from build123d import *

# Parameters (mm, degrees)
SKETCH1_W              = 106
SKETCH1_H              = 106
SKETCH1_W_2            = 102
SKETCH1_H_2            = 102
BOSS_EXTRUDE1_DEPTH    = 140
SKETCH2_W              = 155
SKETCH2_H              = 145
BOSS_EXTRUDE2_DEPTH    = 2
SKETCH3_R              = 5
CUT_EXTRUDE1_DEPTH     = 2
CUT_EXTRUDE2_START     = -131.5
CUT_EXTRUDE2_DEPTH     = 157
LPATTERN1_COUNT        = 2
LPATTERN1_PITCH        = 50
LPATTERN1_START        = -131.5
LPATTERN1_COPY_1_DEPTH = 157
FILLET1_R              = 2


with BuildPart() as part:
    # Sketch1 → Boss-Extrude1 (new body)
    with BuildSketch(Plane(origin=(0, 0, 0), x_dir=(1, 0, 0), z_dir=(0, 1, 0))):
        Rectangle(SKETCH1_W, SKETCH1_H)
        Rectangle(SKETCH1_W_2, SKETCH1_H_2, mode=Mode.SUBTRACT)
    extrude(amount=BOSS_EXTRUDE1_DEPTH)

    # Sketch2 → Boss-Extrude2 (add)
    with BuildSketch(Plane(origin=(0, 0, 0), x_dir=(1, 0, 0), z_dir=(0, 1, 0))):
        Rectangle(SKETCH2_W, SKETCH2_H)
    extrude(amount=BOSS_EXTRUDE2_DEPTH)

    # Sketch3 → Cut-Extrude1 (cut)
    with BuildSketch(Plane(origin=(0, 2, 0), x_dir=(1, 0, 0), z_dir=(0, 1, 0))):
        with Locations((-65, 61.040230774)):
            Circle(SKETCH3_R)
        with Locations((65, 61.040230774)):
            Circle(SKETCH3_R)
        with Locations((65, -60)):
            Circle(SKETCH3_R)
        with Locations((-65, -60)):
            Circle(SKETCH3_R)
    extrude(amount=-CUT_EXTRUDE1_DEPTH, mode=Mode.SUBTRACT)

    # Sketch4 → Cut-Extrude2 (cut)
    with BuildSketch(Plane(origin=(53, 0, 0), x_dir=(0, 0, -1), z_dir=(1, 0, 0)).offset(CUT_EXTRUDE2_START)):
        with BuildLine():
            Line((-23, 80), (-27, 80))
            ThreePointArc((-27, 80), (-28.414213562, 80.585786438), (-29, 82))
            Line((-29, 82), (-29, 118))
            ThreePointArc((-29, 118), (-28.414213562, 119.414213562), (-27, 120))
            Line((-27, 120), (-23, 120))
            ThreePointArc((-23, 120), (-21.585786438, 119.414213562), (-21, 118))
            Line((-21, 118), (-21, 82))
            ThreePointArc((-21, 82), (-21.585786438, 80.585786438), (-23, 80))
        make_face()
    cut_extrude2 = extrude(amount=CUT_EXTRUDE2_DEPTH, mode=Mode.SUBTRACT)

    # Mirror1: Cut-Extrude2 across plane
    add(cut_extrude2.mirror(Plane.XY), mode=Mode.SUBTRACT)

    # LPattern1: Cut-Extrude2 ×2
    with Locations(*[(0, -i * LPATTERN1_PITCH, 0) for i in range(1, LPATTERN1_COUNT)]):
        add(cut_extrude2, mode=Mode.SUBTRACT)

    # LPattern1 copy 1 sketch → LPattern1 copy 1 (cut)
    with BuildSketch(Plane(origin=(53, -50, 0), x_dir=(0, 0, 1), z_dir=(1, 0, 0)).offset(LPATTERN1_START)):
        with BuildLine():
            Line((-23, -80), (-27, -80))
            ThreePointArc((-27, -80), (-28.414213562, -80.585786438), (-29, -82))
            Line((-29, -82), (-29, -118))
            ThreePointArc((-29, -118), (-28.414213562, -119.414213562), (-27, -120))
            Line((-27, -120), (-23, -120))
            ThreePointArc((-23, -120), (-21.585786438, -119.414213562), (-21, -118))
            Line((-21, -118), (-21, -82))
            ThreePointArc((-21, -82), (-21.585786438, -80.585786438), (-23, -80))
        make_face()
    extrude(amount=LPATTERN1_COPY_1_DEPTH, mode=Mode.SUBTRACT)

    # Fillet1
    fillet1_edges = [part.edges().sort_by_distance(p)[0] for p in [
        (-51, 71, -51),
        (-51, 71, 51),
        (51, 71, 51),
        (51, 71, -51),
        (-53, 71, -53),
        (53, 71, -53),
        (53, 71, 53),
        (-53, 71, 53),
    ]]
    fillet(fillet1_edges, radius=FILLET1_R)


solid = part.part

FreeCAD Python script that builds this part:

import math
import FreeCAD as App
import Part
import Sketcher


def edges_at(feature, points):
    """Names of the edges that pass closest to the given points."""
    edges = feature.Shape.Edges
    near = lambda p: min(range(len(edges)), key=lambda i: edges[i].distToShape(Part.Vertex(*p))[0])
    return sorted({f"Edge{near(p) + 1}" for p in points})


def add_polygon(sketch, points):
    """Adds a closed chain of lines whose ends are joined by coincident constraints."""
    first, n = sketch.GeometryCount, len(points)
    for a, b in zip(points, points[1:] + points[:1]):
        sketch.addGeometry(Part.LineSegment(App.Vector(*a, 0), App.Vector(*b, 0)), False)
    for i in range(n):
        sketch.addConstraint(Sketcher.Constraint("Coincident", first + i, 2, first + (i + 1) % n, 1))

doc = App.newDocument("Part")
params = doc.addObject("Spreadsheet::Sheet", "Params")
for row, (alias, value) in enumerate([
    ("sketch1_width", "106 mm"),
    ("sketch1_width2", "102 mm"),
    ("pad1_length", "140 mm"),
    ("sketch2_width", "155 mm"),
    ("sketch2_height", "145 mm"),
    ("pad2_length", "2 mm"),
    ("sketch3_diameter", "10 mm"),
    ("pocket1_length", "2 mm"),
    ("sketch4_radius", "2 mm"),
    ("sketch4_width", "36 mm"),
    ("sketch4_height", "4 mm"),
    ("pocket2_length", "157 mm"),
    ("linearpattern_pitch", "50 mm"),
    ("sketch5_radius", "2 mm"),
    ("sketch5_width", "36 mm"),
    ("sketch5_height", "4 mm"),
    ("pocket3_length", "157 mm"),
    ("fillet_radius", "2 mm"),
], start=1):
    params.set(f"A{row}", alias)
    params.set(f"B{row}", "=" + value)
    params.setAlias(f"B{row}", alias)

body = doc.addObject("PartDesign::Body", "Body")

sketch1 = doc.addObject("Sketcher::SketchObject", "Sketch")
body.addObject(sketch1)
sketch1.AttachmentSupport = (doc.XZ_Plane, [""])
sketch1.MapMode = "FlatFace"
add_polygon(sketch1, [(-53, -53), (-53, 53), (53, 53), (53, -53)])
add_polygon(sketch1, [(51, 51), (-51, 51), (-51, -51), (51, -51)])
sketch1.addConstraint(Sketcher.Constraint("Vertical", 0))
sketch1.addConstraint(Sketcher.Constraint("Horizontal", 1))
sketch1.addConstraint(Sketcher.Constraint("Vertical", 2))
sketch1.addConstraint(Sketcher.Constraint("Horizontal", 3))
sketch1.addConstraint(Sketcher.Constraint("Horizontal", 4))
sketch1.addConstraint(Sketcher.Constraint("Vertical", 5))
sketch1.addConstraint(Sketcher.Constraint("Horizontal", 6))
sketch1.addConstraint(Sketcher.Constraint("Vertical", 7))
sketch1.addConstraint(Sketcher.Constraint("Symmetric", 0, 2, 2, 2, -1, 1))
sketch1.addConstraint(Sketcher.Constraint("Symmetric", 4, 2, 6, 2, -1, 1))
sketch1.addConstraint(Sketcher.Constraint("Equal", 3, 0))
sketch1.addConstraint(Sketcher.Constraint("Equal", 6, 5))
sketch1.addConstraint(Sketcher.Constraint("DistanceX", 1, 1, 1, 2, 106.0))
sketch1.addConstraint(Sketcher.Constraint("DistanceX", 4, 2, 4, 1, 102.0))
sketch1.setExpression("Constraints[20]", "Params.sketch1_width")
sketch1.setExpression("Constraints[21]", "Params.sketch1_width2")
pad1 = doc.addObject("PartDesign::Pad", "Pad")
body.addObject(pad1)
pad1.Profile = sketch1
pad1.setExpression("Length", "Params.pad1_length")
pad1.Reversed = True

sketch2 = doc.addObject("Sketcher::SketchObject", "Sketch001")
body.addObject(sketch2)
sketch2.AttachmentSupport = (doc.XZ_Plane, [""])
sketch2.MapMode = "FlatFace"
add_polygon(sketch2, [(-78, -72), (-78, 72), (78, 72), (78, -72)])
sketch2.addConstraint(Sketcher.Constraint("Vertical", 0))
sketch2.addConstraint(Sketcher.Constraint("Horizontal", 1))
sketch2.addConstraint(Sketcher.Constraint("Vertical", 2))
sketch2.addConstraint(Sketcher.Constraint("Horizontal", 3))
sketch2.addConstraint(Sketcher.Constraint("Symmetric", 0, 2, 2, 2, -1, 1))
sketch2.addConstraint(Sketcher.Constraint("DistanceX", 1, 1, 1, 2, 155.0))
sketch2.addConstraint(Sketcher.Constraint("DistanceY", 0, 1, 0, 2, 145.0))
sketch2.setExpression("Constraints[9]", "Params.sketch2_width")
sketch2.setExpression("Constraints[10]", "Params.sketch2_height")
pad2 = doc.addObject("PartDesign::Pad", "Pad001")
body.addObject(pad2)
pad2.Profile = sketch2
pad2.setExpression("Length", "Params.pad2_length")
pad2.Reversed = True

sketch3 = doc.addObject("Sketcher::SketchObject", "Sketch002")
body.addObject(sketch3)
sketch3.AttachmentSupport = (doc.XZ_Plane, [""])
sketch3.MapMode = "FlatFace"
sketch3.AttachmentOffset = App.Placement(App.Vector(0, 0, -2), App.Rotation())
sketch3.addGeometry(Part.Circle(App.Vector(-65, -61, 0), App.Vector(0, 0, 1), 5), False)
sketch3.addGeometry(Part.Circle(App.Vector(65, -61, 0), App.Vector(0, 0, 1), 5), False)
sketch3.addGeometry(Part.Circle(App.Vector(65, 60, 0), App.Vector(0, 0, 1), 5), False)
sketch3.addGeometry(Part.Circle(App.Vector(-65, 60, 0), App.Vector(0, 0, 1), 5), False)
sketch3.addConstraint(Sketcher.Constraint("Equal", 0, 1))
sketch3.addConstraint(Sketcher.Constraint("Equal", 1, 2))
sketch3.addConstraint(Sketcher.Constraint("Equal", 2, 3))
sketch3.addConstraint(Sketcher.Constraint("Symmetric", 0, 3, 1, 3, -2))
sketch3.addConstraint(Sketcher.Constraint("Symmetric", 2, 3, 3, 3, -2))
sketch3.addConstraint(Sketcher.Constraint("Vertical", 1, 3, 2, 3))
sketch3.addConstraint(Sketcher.Constraint("Diameter", 0, 10.0))
sketch3.addConstraint(Sketcher.Constraint("DistanceX", 0, 3, -1, 1, 65.0))
sketch3.addConstraint(Sketcher.Constraint("DistanceY", -1, 1, 2, 3, 60.0))
sketch3.addConstraint(Sketcher.Constraint("DistanceY", 0, 3, -1, 1, 61.040231))
sketch3.setExpression("Constraints[6]", "Params.sketch3_diameter")
pocket1 = doc.addObject("PartDesign::Pocket", "Pocket")
body.addObject(pocket1)
pocket1.Profile = sketch3
pocket1.setExpression("Length", "Params.pocket1_length")
pocket1.Reversed = True

sketch4 = doc.addObject("Sketcher::SketchObject", "Sketch003")
body.addObject(sketch4)
sketch4.AttachmentSupport = (doc.YZ_Plane, [""])
sketch4.MapMode = "FlatFace"
sketch4.AttachmentOffset = App.Placement(App.Vector(0, 0, -78.5), App.Rotation())
sketch4.addGeometry(Part.LineSegment(App.Vector(80, 27, 0), App.Vector(80, 23, 0)), False)
sketch4.addGeometry(Part.ArcOfCircle(Part.Circle(App.Vector(82, 23, 0), App.Vector(0, 0, 1), 2), math.radians(-180), math.radians(-90)), False)
sketch4.addGeometry(Part.LineSegment(App.Vector(82, 21, 0), App.Vector(118, 21, 0)), False)
sketch4.addGeometry(Part.ArcOfCircle(Part.Circle(App.Vector(118, 23, 0), App.Vector(0, 0, 1), 2), math.radians(-90), math.radians(0)), False)
sketch4.addGeometry(Part.LineSegment(App.Vector(120, 23, 0), App.Vector(120, 27, 0)), False)
sketch4.addGeometry(Part.ArcOfCircle(Part.Circle(App.Vector(118, 27, 0), App.Vector(0, 0, 1), 2), math.radians(0), math.radians(90)), False)
sketch4.addGeometry(Part.LineSegment(App.Vector(118, 29, 0), App.Vector(82, 29, 0)), False)
sketch4.addGeometry(Part.ArcOfCircle(Part.Circle(App.Vector(82, 27, 0), App.Vector(0, 0, 1), 2), math.radians(90), math.radians(180)), False)
sketch4.addConstraint(Sketcher.Constraint("Tangent", 0, 2, 1, 1))
sketch4.addConstraint(Sketcher.Constraint("Tangent", 1, 2, 2, 1))
sketch4.addConstraint(Sketcher.Constraint("Tangent", 2, 2, 3, 1))
sketch4.addConstraint(Sketcher.Constraint("Tangent", 3, 2, 4, 1))
sketch4.addConstraint(Sketcher.Constraint("Tangent", 4, 2, 5, 1))
sketch4.addConstraint(Sketcher.Constraint("Tangent", 5, 2, 6, 1))
sketch4.addConstraint(Sketcher.Constraint("Tangent", 6, 2, 7, 1))
sketch4.addConstraint(Sketcher.Constraint("Tangent", 7, 2, 0, 1))
sketch4.addConstraint(Sketcher.Constraint("Vertical", 0))
sketch4.addConstraint(Sketcher.Constraint("Horizontal", 2))
sketch4.addConstraint(Sketcher.Constraint("Vertical", 4))
sketch4.addConstraint(Sketcher.Constraint("Horizontal", 6))
sketch4.addConstraint(Sketcher.Constraint("Equal", 1, 3))
sketch4.addConstraint(Sketcher.Constraint("Equal", 3, 5))
sketch4.addConstraint(Sketcher.Constraint("Equal", 5, 7))
sketch4.addConstraint(Sketcher.Constraint("Radius", 1, 2.0))
sketch4.addConstraint(Sketcher.Constraint("DistanceX", 2, 1, 2, 2, 36.0))
sketch4.addConstraint(Sketcher.Constraint("DistanceY", 0, 2, 0, 1, 4.0))
sketch4.addConstraint(Sketcher.Constraint("DistanceX", -1, 1, 1, 3, 82.0))
sketch4.addConstraint(Sketcher.Constraint("DistanceY", -1, 1, 1, 3, 23.0))
sketch4.setExpression("Constraints[15]", "Params.sketch4_radius")
sketch4.setExpression("Constraints[16]", "Params.sketch4_width")
sketch4.setExpression("Constraints[17]", "Params.sketch4_height")
pocket2 = doc.addObject("PartDesign::Pocket", "Pocket001")
body.addObject(pocket2)
pocket2.Profile = sketch4
pocket2.setExpression("Length", "Params.pocket2_length")
pocket2.Reversed = True
doc.recompute()

mirrored = doc.addObject("PartDesign::Mirrored", "Mirrored")
body.addObject(mirrored)
mirrored.Originals = [pocket2]
mirrored.MirrorPlane = (doc.XY_Plane, [""])
body.Tip = mirrored
doc.recompute()

linearpattern = doc.addObject("PartDesign::LinearPattern", "LinearPattern")
body.addObject(linearpattern)
linearpattern.Originals = [pocket2]
linearpattern.Direction = (doc.Y_Axis, [""])
linearpattern.Mode = "offset"
linearpattern.setExpression("Offset", "Params.linearpattern_pitch")
linearpattern.Occurrences = 2
linearpattern.Reversed = True
body.Tip = linearpattern

sketch5 = doc.addObject("Sketcher::SketchObject", "Sketch004")
body.addObject(sketch5)
sketch5.AttachmentSupport = (doc.YZ_Plane, [""])
sketch5.MapMode = "FlatFace"
sketch5.AttachmentOffset = App.Placement(App.Vector(0, 0, -78.5), App.Rotation())
sketch5.addGeometry(Part.LineSegment(App.Vector(30, -23, 0), App.Vector(30, -27, 0)), False)
sketch5.addGeometry(Part.ArcOfCircle(Part.Circle(App.Vector(32, -27, 0), App.Vector(0, 0, 1), 2), math.radians(-180), math.radians(-90)), False)
sketch5.addGeometry(Part.LineSegment(App.Vector(32, -29, 0), App.Vector(68, -29, 0)), False)
sketch5.addGeometry(Part.ArcOfCircle(Part.Circle(App.Vector(68, -27, 0), App.Vector(0, 0, 1), 2), math.radians(-90), math.radians(0)), False)
sketch5.addGeometry(Part.LineSegment(App.Vector(70, -27, 0), App.Vector(70, -23, 0)), False)
sketch5.addGeometry(Part.ArcOfCircle(Part.Circle(App.Vector(68, -23, 0), App.Vector(0, 0, 1), 2), math.radians(0), math.radians(90)), False)
sketch5.addGeometry(Part.LineSegment(App.Vector(68, -21, 0), App.Vector(32, -21, 0)), False)
sketch5.addGeometry(Part.ArcOfCircle(Part.Circle(App.Vector(32, -23, 0), App.Vector(0, 0, 1), 2), math.radians(90), math.radians(180)), False)
sketch5.addConstraint(Sketcher.Constraint("Tangent", 0, 2, 1, 1))
sketch5.addConstraint(Sketcher.Constraint("Tangent", 1, 2, 2, 1))
sketch5.addConstraint(Sketcher.Constraint("Tangent", 2, 2, 3, 1))
sketch5.addConstraint(Sketcher.Constraint("Tangent", 3, 2, 4, 1))
sketch5.addConstraint(Sketcher.Constraint("Tangent", 4, 2, 5, 1))
sketch5.addConstraint(Sketcher.Constraint("Tangent", 5, 2, 6, 1))
sketch5.addConstraint(Sketcher.Constraint("Tangent", 6, 2, 7, 1))
sketch5.addConstraint(Sketcher.Constraint("Tangent", 7, 2, 0, 1))
sketch5.addConstraint(Sketcher.Constraint("Vertical", 0))
sketch5.addConstraint(Sketcher.Constraint("Horizontal", 2))
sketch5.addConstraint(Sketcher.Constraint("Vertical", 4))
sketch5.addConstraint(Sketcher.Constraint("Horizontal", 6))
sketch5.addConstraint(Sketcher.Constraint("Equal", 1, 3))
sketch5.addConstraint(Sketcher.Constraint("Equal", 3, 5))
sketch5.addConstraint(Sketcher.Constraint("Equal", 5, 7))
sketch5.addConstraint(Sketcher.Constraint("Radius", 1, 2.0))
sketch5.addConstraint(Sketcher.Constraint("DistanceX", 2, 1, 2, 2, 36.0))
sketch5.addConstraint(Sketcher.Constraint("DistanceY", 0, 2, 0, 1, 4.0))
sketch5.addConstraint(Sketcher.Constraint("DistanceX", -1, 1, 1, 3, 32.0))
sketch5.addConstraint(Sketcher.Constraint("DistanceY", 1, 3, -1, 1, 27.0))
sketch5.setExpression("Constraints[15]", "Params.sketch5_radius")
sketch5.setExpression("Constraints[16]", "Params.sketch5_width")
sketch5.setExpression("Constraints[17]", "Params.sketch5_height")
pocket3 = doc.addObject("PartDesign::Pocket", "Pocket002")
body.addObject(pocket3)
pocket3.Profile = sketch5
pocket3.setExpression("Length", "Params.pocket3_length")
pocket3.Reversed = True
doc.recompute()

fillet = doc.addObject("PartDesign::Fillet", "Fillet")
body.addObject(fillet)
fillet.Base = (pocket3, edges_at(pocket3, [
    (-51, 71, -51),
    (-51, 71, 51),
    (51, 71, 51),
    (51, 71, -51),
    (-53, 71, -53),
    (53, 71, -53),
    (53, 71, 53),
    (-53, 71, 53),
]))
fillet.setExpression("Radius", "Params.fillet_radius")

doc.recompute()
